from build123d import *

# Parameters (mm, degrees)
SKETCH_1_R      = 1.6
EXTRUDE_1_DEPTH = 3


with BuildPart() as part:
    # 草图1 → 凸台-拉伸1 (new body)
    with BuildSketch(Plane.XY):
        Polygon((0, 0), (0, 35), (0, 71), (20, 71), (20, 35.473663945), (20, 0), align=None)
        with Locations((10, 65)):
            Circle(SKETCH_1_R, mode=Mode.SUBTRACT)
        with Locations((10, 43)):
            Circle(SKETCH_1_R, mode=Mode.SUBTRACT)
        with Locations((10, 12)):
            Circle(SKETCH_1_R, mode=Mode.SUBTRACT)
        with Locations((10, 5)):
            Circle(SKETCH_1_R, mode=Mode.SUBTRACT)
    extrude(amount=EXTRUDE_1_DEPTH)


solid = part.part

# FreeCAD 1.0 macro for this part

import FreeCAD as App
import Part
import Sketcher
from FreeCAD import Vector
Q = App.Units.Quantity

doc = App.newDocument("Part")
params = doc.addObject("Spreadsheet::Sheet", "Params")
for row, (alias, value) in enumerate([
    ("sketch1_diameter", "3.2 mm"),
    ("sketch1_width", "20 mm"),
    ("sketch1_height", "71 mm"),
    ("pad1_length", "3 mm"),
], start=1):
    params.set(f"A{row}", alias)
    params.set(f"B{row}", "=" + value)
    params.setAlias(f"B{row}", alias)

body = doc.addObject("PartDesign::Body", "Body")

sketch1 = doc.addObject("Sketcher::SketchObject", "Sketch")
body.addObject(sketch1)
sketch1.AttachmentSupport = (doc.XY_Plane, [""])
sketch1.MapMode = "FlatFace"
sketch1.addGeometry([
    Part.LineSegment(Vector(0, 71, 0), Vector(0, 0, 0)),
    Part.LineSegment(Vector(0, 0, 0), Vector(20, 0, 0)),
    Part.LineSegment(Vector(20, 0, 0), Vector(20, 71, 0)),
    Part.LineSegment(Vector(20, 71, 0), Vector(0, 71, 0)),
    Part.Circle(Vector(10, 5, 0), Vector(0, 0, 1), 1.6),
    Part.Circle(Vector(10, 12, 0), Vector(0, 0, 1), 1.6),
    Part.Circle(Vector(10, 43, 0), Vector(0, 0, 1), 1.6),
    Part.Circle(Vector(10, 65, 0), Vector(0, 0, 1), 1.6),
], False)
sketch1.addConstraint([
    Sketcher.Constraint("Coincident", 0, 2, 1, 1),
    Sketcher.Constraint("Coincident", 1, 2, 2, 1),
    Sketcher.Constraint("Coincident", 2, 2, 3, 1),
    Sketcher.Constraint("Coincident", 3, 2, 0, 1),
    Sketcher.Constraint("Vertical", 0),
    Sketcher.Constraint("Horizontal", 1),
    Sketcher.Constraint("Vertical", 2),
    Sketcher.Constraint("Horizontal", 3),
    Sketcher.Constraint("Coincident", 0, 2, -1, 1),
    Sketcher.Constraint("Equal", 4, 5),
    Sketcher.Constraint("Equal", 5, 6),
    Sketcher.Constraint("Equal", 6, 7),
    Sketcher.Constraint("Vertical", 4, 3, 5, 3),
    Sketcher.Constraint("Vertical", 5, 3, 6, 3),
    Sketcher.Constraint("Vertical", 6, 3, 7, 3),
    Sketcher.Constraint("Diameter", 4, Q("3.2 mm")),
    Sketcher.Constraint("DistanceX", 1, 1, 1, 2, Q("20 mm")),
    Sketcher.Constraint("DistanceY", 0, 2, 0, 1, Q("71 mm")),
    Sketcher.Constraint("DistanceX", -1, 1, 4, 3, Q("10 mm")),
    Sketcher.Constraint("DistanceY", -1, 1, 4, 3, Q("5 mm")),
    Sketcher.Constraint("DistanceY", -1, 1, 5, 3, Q("12 mm")),
    Sketcher.Constraint("DistanceY", -1, 1, 6, 3, Q("43 mm")),
    Sketcher.Constraint("DistanceY", -1, 1, 7, 3, Q("65 mm")),
])
sketch1.setExpression("Constraints[15]", "Params.sketch1_diameter")
sketch1.setExpression("Constraints[16]", "Params.sketch1_width")
sketch1.setExpression("Constraints[17]", "Params.sketch1_height")
pad1 = doc.addObject("PartDesign::Pad", "Pad")
body.addObject(pad1)
pad1.Profile = sketch1
pad1.setExpression("Length", "Params.pad1_length")

doc.recompute()
